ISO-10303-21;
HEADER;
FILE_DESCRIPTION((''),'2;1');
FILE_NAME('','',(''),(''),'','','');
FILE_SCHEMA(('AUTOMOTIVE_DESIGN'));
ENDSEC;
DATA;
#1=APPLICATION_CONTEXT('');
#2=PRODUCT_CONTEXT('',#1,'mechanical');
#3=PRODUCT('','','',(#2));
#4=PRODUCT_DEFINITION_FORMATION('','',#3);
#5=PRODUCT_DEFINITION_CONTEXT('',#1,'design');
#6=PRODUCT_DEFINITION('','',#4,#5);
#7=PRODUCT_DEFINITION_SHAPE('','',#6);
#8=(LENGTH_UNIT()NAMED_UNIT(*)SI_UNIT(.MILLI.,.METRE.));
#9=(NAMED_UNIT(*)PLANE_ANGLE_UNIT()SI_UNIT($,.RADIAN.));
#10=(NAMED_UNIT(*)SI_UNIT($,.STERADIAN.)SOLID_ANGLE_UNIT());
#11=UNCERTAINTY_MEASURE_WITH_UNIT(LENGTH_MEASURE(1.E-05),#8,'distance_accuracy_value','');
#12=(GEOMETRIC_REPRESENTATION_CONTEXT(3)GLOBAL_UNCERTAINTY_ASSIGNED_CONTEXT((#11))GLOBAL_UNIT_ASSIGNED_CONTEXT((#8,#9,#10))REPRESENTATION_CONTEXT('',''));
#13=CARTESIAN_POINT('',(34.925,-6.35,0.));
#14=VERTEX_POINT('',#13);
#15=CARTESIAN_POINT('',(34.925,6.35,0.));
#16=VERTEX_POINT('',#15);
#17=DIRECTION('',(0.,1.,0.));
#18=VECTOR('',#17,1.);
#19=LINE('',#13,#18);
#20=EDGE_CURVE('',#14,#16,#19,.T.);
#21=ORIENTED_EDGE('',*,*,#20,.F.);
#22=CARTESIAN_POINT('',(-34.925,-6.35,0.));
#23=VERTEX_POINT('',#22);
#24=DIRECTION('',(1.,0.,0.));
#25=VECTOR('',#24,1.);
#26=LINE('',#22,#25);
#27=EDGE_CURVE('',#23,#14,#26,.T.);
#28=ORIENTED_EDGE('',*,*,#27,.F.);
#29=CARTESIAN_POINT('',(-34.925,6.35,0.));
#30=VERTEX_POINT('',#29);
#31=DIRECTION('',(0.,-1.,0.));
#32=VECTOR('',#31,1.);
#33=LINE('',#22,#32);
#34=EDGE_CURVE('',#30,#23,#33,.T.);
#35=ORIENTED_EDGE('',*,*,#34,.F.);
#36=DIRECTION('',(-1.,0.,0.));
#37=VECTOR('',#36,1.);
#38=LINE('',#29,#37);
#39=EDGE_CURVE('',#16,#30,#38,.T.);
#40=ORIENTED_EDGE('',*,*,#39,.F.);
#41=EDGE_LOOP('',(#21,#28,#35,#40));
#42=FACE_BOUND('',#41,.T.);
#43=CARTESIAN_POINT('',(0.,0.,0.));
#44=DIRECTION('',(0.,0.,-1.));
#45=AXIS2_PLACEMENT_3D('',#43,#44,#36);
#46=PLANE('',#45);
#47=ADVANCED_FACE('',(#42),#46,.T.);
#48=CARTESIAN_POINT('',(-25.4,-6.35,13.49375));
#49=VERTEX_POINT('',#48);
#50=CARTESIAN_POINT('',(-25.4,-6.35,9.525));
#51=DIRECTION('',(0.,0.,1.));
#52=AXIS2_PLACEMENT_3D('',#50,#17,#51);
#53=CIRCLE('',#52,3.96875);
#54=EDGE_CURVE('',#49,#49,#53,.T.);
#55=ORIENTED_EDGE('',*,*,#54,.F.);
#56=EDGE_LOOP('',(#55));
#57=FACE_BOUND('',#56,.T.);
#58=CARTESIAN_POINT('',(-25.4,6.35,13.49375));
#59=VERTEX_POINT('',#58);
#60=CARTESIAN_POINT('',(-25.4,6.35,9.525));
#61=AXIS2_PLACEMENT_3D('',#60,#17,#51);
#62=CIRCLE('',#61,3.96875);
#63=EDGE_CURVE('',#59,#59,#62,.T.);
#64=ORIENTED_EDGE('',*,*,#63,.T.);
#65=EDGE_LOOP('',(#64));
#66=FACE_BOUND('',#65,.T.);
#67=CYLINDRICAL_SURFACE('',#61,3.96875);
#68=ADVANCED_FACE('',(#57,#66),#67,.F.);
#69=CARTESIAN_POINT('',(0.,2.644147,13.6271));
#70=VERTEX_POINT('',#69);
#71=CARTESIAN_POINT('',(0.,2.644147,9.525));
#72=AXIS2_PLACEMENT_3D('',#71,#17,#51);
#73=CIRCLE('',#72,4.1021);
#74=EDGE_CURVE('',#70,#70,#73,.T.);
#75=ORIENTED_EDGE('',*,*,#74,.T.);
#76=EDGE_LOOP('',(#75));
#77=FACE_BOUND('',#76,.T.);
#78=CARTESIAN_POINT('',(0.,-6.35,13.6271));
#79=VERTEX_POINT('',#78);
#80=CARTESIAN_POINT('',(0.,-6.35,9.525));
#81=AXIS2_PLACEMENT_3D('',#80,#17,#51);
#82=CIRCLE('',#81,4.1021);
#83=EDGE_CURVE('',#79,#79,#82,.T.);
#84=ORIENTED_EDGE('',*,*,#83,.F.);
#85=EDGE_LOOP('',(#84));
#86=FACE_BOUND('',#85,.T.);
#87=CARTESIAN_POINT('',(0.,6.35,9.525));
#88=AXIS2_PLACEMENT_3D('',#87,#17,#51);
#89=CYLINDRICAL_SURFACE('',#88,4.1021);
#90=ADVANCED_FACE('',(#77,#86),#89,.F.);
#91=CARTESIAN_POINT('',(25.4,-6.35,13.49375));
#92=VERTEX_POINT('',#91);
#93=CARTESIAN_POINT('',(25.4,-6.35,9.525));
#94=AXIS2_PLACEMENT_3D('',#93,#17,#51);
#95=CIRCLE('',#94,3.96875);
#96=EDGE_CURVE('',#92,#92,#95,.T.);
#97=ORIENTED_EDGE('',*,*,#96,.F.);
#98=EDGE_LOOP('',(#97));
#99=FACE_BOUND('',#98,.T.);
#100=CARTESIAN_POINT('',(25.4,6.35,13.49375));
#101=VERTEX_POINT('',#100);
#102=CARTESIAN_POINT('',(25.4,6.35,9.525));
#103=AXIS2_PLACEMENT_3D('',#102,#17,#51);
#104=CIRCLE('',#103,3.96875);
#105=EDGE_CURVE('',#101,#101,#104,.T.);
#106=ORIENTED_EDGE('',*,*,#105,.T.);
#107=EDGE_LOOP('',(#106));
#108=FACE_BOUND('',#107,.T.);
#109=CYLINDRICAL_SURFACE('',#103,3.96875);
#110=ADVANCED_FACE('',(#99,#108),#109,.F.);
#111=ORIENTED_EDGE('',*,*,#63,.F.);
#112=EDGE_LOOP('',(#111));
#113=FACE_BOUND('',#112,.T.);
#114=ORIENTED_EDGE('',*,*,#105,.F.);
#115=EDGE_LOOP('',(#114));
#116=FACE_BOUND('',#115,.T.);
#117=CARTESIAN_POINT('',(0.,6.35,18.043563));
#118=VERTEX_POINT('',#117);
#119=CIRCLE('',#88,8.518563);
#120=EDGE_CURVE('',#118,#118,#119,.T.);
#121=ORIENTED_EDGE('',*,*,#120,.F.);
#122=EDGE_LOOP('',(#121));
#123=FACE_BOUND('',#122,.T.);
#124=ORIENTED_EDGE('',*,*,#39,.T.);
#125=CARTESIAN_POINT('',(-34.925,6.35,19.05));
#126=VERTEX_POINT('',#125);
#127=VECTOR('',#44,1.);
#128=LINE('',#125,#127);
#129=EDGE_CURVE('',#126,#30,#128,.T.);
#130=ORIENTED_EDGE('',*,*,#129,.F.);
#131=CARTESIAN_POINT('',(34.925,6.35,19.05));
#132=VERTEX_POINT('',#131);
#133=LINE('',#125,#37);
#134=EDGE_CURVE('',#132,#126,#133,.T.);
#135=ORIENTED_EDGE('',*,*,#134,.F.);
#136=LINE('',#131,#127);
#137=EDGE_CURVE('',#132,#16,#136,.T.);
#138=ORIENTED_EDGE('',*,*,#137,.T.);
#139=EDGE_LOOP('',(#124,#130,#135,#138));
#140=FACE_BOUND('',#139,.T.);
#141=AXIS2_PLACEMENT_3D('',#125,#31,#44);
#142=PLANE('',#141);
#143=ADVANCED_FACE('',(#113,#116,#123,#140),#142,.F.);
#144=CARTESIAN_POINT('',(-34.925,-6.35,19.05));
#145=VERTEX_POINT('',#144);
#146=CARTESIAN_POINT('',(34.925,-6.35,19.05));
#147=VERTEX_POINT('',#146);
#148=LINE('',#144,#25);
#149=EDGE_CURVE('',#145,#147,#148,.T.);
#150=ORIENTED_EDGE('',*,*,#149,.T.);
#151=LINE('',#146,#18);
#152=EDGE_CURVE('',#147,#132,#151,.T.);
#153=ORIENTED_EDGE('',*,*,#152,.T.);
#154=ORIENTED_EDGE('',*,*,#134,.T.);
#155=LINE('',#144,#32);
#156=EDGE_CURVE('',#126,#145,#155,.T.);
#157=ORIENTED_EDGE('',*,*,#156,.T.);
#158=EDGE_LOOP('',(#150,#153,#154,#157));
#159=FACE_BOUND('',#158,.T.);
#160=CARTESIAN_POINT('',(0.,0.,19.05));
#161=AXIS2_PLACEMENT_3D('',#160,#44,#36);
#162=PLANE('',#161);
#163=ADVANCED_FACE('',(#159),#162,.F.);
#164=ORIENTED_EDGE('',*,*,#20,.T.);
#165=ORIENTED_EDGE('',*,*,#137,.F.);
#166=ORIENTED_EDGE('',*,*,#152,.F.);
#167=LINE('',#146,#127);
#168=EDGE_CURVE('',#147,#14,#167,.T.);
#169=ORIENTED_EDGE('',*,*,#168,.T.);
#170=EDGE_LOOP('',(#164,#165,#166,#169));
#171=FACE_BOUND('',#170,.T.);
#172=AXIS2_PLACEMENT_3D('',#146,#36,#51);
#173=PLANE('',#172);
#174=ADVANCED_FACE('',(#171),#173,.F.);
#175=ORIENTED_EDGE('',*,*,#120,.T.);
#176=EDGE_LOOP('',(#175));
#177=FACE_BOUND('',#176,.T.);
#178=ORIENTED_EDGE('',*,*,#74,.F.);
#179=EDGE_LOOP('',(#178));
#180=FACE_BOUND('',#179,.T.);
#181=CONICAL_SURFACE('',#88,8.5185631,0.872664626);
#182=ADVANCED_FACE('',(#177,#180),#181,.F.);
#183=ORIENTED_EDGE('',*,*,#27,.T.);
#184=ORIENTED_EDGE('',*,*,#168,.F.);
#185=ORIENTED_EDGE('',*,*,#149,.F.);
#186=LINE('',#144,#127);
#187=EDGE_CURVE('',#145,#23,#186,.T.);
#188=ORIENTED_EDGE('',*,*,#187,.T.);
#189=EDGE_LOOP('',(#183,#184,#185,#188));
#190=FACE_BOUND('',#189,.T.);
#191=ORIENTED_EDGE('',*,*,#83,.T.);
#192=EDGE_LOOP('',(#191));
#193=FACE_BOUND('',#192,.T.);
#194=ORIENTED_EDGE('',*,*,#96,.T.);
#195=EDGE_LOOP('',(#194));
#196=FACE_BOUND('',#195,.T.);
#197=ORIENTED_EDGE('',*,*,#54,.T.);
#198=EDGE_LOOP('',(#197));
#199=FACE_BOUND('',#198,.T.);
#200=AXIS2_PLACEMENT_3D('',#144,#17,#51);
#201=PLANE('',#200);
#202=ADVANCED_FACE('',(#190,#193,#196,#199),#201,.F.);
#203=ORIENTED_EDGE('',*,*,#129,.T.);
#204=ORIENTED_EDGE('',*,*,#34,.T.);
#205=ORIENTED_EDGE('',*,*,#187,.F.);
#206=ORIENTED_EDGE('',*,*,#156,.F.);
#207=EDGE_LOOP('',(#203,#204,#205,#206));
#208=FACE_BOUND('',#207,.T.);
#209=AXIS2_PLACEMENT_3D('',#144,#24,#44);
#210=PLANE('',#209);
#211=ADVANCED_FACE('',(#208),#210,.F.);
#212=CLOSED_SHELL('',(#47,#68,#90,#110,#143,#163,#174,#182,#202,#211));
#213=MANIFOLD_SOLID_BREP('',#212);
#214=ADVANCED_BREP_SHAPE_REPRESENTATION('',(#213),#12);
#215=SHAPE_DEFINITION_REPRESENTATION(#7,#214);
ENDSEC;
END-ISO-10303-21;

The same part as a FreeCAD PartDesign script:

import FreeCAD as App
import Part
import Sketcher

V = App.Vector
Q = App.Units.Quantity


def add_polygon(sketch, points):
    """Adds a closed chain of lines whose ends are joined by coincident constraints."""
    first, n = sketch.GeometryCount, len(points)
    for a, b in zip(points, points[1:] + points[:1]):
        sketch.addGeometry(Part.LineSegment(App.Vector(*a, 0), App.Vector(*b, 0)), False)
    for i in range(n):
        sketch.addConstraint(Sketcher.Constraint("Coincident", first + i, 2, first + (i + 1) % n, 1))

doc = App.newDocument("Part")
body = doc.addObject("PartDesign::Body", "Body")

sketch1 = body.newObject("Sketcher::SketchObject", "Sketch")
sketch1.AttachmentSupport = (doc.getObject("XY_Plane"), [""])
sketch1.MapMode = "FlatFace"
add_polygon(sketch1, [(-35, 6), (-35, -6), (35, -6), (35, 6)])
sketch1.addConstraint([
    Sketcher.Constraint("Vertical", 0),
    Sketcher.Constraint("Horizontal", 1),
    Sketcher.Constraint("Vertical", 2),
    Sketcher.Constraint("Horizontal", 3),
    Sketcher.Constraint("Symmetric", 0, 2, 2, 2, -1, 1),
    Sketcher.Constraint("DistanceY", 0, 2, 0, 1, Q("0.5 in")),
    Sketcher.Constraint("DistanceX", 1, 1, 1, 2, Q("2.75 in")),
])
pad1 = body.newObject("PartDesign::Pad", "Pad")
pad1.Profile = sketch1
pad1.Length = Q("0.75 in")

sketch2 = body.newObject("Sketcher::SketchObject", "Sketch001")
sketch2.AttachmentSupport = (doc.getObject("XZ_Plane"), [""])
sketch2.MapMode = "FlatFace"
sketch2.AttachmentOffset = App.Placement(V(0, 0, -0.25 * 25.4), App.Rotation())
sketch2.addGeometry([
    Part.Circle(V(-25.4, 9.5, 0), V(0, 0, 1), 4),
    Part.Circle(V(25.4, 9.5, 0), V(0, 0, 1), 4),
], False)
sketch2.addConstraint([
    Sketcher.Constraint("Equal", 0, 1),
    Sketcher.Constraint("Symmetric", 0, 3, 1, 3, -2),
    Sketcher.Constraint("Diameter", 0, Q("0.3125 in")),
    Sketcher.Constraint("DistanceX", 0, 3, -1, 1, Q("1 in")),
    Sketcher.Constraint("DistanceY", -1, 1, 0, 3, Q("0.375 in")),
])
doc.recompute()
hole = body.newObject("PartDesign::Hole", "Hole")
hole.Profile = sketch2
hole.ThreadType = "None"
hole.Diameter = Q("0.3125 in")
hole.DepthType = "ThroughAll"
hole.Reversed = True

sketch3 = body.newObject("Sketcher::SketchObject", "Sketch002")
sketch3.AttachmentSupport = (doc.getObject("XZ_Plane"), [""])
sketch3.MapMode = "FlatFace"
sketch3.AttachmentOffset = App.Placement(V(0, 0, -0.25 * 25.4), App.Rotation())
sketch3.addGeometry(Part.Circle(V(0, 9.5, 0), V(0, 0, 1), 4.1), False)
sketch3.addConstraint([
    Sketcher.Constraint("PointOnObject", 0, 3, -2),
    Sketcher.Constraint("Diameter", 0, Q("0.323 in")),
    Sketcher.Constraint("DistanceY", -1, 1, 0, 3, Q("0.375 in")),
])
doc.recompute()
hole2 = body.newObject("PartDesign::Hole", "Hole001")
hole2.Profile = sketch3
hole2.ThreadType = "None"
hole2.Diameter = Q("0.323 in")
hole2.DepthType = "ThroughAll"
hole2.HoleCutType = "Countersink"
hole2.HoleCutDiameter = 17.037126
hole2.HoleCutCountersinkAngle = 100
hole2.Reversed = True

doc.recompute()
